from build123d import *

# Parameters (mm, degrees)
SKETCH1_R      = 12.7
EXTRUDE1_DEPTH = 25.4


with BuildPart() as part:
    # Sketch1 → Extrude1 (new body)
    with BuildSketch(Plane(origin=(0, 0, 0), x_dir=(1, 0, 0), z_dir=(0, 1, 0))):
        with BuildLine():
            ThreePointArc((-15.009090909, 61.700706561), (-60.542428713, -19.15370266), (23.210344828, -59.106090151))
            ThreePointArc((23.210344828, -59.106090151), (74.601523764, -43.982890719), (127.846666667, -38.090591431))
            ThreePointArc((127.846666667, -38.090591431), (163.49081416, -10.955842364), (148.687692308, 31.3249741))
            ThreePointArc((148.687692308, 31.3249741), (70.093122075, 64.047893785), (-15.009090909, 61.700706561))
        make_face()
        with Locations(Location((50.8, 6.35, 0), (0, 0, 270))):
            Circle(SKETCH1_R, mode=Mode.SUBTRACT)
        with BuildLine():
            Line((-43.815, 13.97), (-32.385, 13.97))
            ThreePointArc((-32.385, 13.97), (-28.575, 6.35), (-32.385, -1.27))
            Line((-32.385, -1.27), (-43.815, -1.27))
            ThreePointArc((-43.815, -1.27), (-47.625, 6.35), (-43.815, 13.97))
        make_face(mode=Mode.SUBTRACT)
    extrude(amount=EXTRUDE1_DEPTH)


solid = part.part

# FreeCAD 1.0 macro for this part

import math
import FreeCAD as App
import Part
import Sketcher
from FreeCAD import Vector
Q = App.Units.Quantity

doc = App.newDocument("Part")
body = doc.addObject("PartDesign::Body", "Body")

sketch1 = doc.addObject("Sketcher::SketchObject", "Sketch")
body.addObject(sketch1)
sketch1.AttachmentSupport = (doc.XZ_Plane, [""])
sketch1.MapMode = "FlatFace"
sketch1.addGeometry([
    Part.ArcOfCircle(Part.Circle(Vector(0, 0, 0), Vector(0, 0, 1), 64), math.radians(69), math.radians(256)),
    Part.ArcOfCircle(Part.Circle(Vector(135, 343, 0), Vector(0, 0, 1), 305), math.radians(-111), math.radians(-91)),
    Part.ArcOfCircle(Part.Circle(Vector(127, 0, 0), Vector(0, 0, 1), 38), math.radians(-55), math.radians(89)),
    Part.ArcOfCircle(Part.Circle(Vector(33, 136, 0), Vector(0, 0, 1), 203), math.radians(-104), math.radians(-55)),
    Part.Circle(Vector(51, -6, 0), Vector(0, 0, 1), 13),
    Part.ArcOfCircle(Part.Circle(Vector(-38, -6, 0), Vector(0, 0, 1), 10), math.radians(127), math.radians(233)),
    Part.LineSegment(Vector(-44, -14, 0), Vector(-32, -14, 0)),
    Part.ArcOfCircle(Part.Circle(Vector(-38, -6, 0), Vector(0, 0, 1), 10), math.radians(-53), math.radians(53)),
    Part.LineSegment(Vector(-32, 1, 0), Vector(-44, 1, 0)),
], False)
sketch1.addConstraint([
    Sketcher.Constraint("Tangent", 0, 1, 1, 1),
    Sketcher.Constraint("Tangent", 1, 2, 2, 2),
    Sketcher.Constraint("Tangent", 2, 1, 3, 2),
    Sketcher.Constraint("Tangent", 3, 1, 0, 2),
    Sketcher.Constraint("Coincident", 5, 2, 6, 1),
    Sketcher.Constraint("Coincident", 6, 2, 7, 1),
    Sketcher.Constraint("Coincident", 7, 2, 8, 1),
    Sketcher.Constraint("Coincident", 8, 2, 5, 1),
    Sketcher.Constraint("Horizontal", 6),
    Sketcher.Constraint("Horizontal", 8),
    Sketcher.Constraint("Coincident", 0, 3, -1, 1),
    Sketcher.Constraint("Coincident", 7, 3, 5, 3),
    Sketcher.Constraint("Equal", 5, 7),
    Sketcher.Constraint("PointOnObject", 2, 3, -1),
    Sketcher.Constraint("Horizontal", 4, 3, 5, 3),
    Sketcher.Constraint("Vertical", 6, 2, 7, 2),
    Sketcher.Constraint("Diameter", 4, Q("1 in")),
    Sketcher.Constraint("Radius", 1, Q("12 in")),
    Sketcher.Constraint("Radius", 3, Q("8 in")),
    Sketcher.Constraint("Radius", 0, Q("2.5 in")),
    Sketcher.Constraint("Radius", 2, Q("1.5 in")),
    Sketcher.Constraint("DistanceX", -1, 1, 2, 3, Q("5 in")),
    Sketcher.Constraint("DistanceX", -1, 1, 4, 3, Q("2 in")),
    Sketcher.Constraint("Radius", 5, Q("0.375 in")),
    Sketcher.Constraint("DistanceX", 6, 1, 6, 2, Q("0.45 in")),
    Sketcher.Constraint("DistanceX", 5, 3, -1, 1, Q("1.5 in")),
    Sketcher.Constraint("DistanceY", 4, 3, -1, 1, Q("0.25 in")),
])
pad1 = doc.addObject("PartDesign::Pad", "Pad")
body.addObject(pad1)
pad1.Profile = sketch1
pad1.Length = Q("1 in")
pad1.Reversed = True

doc.recompute()
